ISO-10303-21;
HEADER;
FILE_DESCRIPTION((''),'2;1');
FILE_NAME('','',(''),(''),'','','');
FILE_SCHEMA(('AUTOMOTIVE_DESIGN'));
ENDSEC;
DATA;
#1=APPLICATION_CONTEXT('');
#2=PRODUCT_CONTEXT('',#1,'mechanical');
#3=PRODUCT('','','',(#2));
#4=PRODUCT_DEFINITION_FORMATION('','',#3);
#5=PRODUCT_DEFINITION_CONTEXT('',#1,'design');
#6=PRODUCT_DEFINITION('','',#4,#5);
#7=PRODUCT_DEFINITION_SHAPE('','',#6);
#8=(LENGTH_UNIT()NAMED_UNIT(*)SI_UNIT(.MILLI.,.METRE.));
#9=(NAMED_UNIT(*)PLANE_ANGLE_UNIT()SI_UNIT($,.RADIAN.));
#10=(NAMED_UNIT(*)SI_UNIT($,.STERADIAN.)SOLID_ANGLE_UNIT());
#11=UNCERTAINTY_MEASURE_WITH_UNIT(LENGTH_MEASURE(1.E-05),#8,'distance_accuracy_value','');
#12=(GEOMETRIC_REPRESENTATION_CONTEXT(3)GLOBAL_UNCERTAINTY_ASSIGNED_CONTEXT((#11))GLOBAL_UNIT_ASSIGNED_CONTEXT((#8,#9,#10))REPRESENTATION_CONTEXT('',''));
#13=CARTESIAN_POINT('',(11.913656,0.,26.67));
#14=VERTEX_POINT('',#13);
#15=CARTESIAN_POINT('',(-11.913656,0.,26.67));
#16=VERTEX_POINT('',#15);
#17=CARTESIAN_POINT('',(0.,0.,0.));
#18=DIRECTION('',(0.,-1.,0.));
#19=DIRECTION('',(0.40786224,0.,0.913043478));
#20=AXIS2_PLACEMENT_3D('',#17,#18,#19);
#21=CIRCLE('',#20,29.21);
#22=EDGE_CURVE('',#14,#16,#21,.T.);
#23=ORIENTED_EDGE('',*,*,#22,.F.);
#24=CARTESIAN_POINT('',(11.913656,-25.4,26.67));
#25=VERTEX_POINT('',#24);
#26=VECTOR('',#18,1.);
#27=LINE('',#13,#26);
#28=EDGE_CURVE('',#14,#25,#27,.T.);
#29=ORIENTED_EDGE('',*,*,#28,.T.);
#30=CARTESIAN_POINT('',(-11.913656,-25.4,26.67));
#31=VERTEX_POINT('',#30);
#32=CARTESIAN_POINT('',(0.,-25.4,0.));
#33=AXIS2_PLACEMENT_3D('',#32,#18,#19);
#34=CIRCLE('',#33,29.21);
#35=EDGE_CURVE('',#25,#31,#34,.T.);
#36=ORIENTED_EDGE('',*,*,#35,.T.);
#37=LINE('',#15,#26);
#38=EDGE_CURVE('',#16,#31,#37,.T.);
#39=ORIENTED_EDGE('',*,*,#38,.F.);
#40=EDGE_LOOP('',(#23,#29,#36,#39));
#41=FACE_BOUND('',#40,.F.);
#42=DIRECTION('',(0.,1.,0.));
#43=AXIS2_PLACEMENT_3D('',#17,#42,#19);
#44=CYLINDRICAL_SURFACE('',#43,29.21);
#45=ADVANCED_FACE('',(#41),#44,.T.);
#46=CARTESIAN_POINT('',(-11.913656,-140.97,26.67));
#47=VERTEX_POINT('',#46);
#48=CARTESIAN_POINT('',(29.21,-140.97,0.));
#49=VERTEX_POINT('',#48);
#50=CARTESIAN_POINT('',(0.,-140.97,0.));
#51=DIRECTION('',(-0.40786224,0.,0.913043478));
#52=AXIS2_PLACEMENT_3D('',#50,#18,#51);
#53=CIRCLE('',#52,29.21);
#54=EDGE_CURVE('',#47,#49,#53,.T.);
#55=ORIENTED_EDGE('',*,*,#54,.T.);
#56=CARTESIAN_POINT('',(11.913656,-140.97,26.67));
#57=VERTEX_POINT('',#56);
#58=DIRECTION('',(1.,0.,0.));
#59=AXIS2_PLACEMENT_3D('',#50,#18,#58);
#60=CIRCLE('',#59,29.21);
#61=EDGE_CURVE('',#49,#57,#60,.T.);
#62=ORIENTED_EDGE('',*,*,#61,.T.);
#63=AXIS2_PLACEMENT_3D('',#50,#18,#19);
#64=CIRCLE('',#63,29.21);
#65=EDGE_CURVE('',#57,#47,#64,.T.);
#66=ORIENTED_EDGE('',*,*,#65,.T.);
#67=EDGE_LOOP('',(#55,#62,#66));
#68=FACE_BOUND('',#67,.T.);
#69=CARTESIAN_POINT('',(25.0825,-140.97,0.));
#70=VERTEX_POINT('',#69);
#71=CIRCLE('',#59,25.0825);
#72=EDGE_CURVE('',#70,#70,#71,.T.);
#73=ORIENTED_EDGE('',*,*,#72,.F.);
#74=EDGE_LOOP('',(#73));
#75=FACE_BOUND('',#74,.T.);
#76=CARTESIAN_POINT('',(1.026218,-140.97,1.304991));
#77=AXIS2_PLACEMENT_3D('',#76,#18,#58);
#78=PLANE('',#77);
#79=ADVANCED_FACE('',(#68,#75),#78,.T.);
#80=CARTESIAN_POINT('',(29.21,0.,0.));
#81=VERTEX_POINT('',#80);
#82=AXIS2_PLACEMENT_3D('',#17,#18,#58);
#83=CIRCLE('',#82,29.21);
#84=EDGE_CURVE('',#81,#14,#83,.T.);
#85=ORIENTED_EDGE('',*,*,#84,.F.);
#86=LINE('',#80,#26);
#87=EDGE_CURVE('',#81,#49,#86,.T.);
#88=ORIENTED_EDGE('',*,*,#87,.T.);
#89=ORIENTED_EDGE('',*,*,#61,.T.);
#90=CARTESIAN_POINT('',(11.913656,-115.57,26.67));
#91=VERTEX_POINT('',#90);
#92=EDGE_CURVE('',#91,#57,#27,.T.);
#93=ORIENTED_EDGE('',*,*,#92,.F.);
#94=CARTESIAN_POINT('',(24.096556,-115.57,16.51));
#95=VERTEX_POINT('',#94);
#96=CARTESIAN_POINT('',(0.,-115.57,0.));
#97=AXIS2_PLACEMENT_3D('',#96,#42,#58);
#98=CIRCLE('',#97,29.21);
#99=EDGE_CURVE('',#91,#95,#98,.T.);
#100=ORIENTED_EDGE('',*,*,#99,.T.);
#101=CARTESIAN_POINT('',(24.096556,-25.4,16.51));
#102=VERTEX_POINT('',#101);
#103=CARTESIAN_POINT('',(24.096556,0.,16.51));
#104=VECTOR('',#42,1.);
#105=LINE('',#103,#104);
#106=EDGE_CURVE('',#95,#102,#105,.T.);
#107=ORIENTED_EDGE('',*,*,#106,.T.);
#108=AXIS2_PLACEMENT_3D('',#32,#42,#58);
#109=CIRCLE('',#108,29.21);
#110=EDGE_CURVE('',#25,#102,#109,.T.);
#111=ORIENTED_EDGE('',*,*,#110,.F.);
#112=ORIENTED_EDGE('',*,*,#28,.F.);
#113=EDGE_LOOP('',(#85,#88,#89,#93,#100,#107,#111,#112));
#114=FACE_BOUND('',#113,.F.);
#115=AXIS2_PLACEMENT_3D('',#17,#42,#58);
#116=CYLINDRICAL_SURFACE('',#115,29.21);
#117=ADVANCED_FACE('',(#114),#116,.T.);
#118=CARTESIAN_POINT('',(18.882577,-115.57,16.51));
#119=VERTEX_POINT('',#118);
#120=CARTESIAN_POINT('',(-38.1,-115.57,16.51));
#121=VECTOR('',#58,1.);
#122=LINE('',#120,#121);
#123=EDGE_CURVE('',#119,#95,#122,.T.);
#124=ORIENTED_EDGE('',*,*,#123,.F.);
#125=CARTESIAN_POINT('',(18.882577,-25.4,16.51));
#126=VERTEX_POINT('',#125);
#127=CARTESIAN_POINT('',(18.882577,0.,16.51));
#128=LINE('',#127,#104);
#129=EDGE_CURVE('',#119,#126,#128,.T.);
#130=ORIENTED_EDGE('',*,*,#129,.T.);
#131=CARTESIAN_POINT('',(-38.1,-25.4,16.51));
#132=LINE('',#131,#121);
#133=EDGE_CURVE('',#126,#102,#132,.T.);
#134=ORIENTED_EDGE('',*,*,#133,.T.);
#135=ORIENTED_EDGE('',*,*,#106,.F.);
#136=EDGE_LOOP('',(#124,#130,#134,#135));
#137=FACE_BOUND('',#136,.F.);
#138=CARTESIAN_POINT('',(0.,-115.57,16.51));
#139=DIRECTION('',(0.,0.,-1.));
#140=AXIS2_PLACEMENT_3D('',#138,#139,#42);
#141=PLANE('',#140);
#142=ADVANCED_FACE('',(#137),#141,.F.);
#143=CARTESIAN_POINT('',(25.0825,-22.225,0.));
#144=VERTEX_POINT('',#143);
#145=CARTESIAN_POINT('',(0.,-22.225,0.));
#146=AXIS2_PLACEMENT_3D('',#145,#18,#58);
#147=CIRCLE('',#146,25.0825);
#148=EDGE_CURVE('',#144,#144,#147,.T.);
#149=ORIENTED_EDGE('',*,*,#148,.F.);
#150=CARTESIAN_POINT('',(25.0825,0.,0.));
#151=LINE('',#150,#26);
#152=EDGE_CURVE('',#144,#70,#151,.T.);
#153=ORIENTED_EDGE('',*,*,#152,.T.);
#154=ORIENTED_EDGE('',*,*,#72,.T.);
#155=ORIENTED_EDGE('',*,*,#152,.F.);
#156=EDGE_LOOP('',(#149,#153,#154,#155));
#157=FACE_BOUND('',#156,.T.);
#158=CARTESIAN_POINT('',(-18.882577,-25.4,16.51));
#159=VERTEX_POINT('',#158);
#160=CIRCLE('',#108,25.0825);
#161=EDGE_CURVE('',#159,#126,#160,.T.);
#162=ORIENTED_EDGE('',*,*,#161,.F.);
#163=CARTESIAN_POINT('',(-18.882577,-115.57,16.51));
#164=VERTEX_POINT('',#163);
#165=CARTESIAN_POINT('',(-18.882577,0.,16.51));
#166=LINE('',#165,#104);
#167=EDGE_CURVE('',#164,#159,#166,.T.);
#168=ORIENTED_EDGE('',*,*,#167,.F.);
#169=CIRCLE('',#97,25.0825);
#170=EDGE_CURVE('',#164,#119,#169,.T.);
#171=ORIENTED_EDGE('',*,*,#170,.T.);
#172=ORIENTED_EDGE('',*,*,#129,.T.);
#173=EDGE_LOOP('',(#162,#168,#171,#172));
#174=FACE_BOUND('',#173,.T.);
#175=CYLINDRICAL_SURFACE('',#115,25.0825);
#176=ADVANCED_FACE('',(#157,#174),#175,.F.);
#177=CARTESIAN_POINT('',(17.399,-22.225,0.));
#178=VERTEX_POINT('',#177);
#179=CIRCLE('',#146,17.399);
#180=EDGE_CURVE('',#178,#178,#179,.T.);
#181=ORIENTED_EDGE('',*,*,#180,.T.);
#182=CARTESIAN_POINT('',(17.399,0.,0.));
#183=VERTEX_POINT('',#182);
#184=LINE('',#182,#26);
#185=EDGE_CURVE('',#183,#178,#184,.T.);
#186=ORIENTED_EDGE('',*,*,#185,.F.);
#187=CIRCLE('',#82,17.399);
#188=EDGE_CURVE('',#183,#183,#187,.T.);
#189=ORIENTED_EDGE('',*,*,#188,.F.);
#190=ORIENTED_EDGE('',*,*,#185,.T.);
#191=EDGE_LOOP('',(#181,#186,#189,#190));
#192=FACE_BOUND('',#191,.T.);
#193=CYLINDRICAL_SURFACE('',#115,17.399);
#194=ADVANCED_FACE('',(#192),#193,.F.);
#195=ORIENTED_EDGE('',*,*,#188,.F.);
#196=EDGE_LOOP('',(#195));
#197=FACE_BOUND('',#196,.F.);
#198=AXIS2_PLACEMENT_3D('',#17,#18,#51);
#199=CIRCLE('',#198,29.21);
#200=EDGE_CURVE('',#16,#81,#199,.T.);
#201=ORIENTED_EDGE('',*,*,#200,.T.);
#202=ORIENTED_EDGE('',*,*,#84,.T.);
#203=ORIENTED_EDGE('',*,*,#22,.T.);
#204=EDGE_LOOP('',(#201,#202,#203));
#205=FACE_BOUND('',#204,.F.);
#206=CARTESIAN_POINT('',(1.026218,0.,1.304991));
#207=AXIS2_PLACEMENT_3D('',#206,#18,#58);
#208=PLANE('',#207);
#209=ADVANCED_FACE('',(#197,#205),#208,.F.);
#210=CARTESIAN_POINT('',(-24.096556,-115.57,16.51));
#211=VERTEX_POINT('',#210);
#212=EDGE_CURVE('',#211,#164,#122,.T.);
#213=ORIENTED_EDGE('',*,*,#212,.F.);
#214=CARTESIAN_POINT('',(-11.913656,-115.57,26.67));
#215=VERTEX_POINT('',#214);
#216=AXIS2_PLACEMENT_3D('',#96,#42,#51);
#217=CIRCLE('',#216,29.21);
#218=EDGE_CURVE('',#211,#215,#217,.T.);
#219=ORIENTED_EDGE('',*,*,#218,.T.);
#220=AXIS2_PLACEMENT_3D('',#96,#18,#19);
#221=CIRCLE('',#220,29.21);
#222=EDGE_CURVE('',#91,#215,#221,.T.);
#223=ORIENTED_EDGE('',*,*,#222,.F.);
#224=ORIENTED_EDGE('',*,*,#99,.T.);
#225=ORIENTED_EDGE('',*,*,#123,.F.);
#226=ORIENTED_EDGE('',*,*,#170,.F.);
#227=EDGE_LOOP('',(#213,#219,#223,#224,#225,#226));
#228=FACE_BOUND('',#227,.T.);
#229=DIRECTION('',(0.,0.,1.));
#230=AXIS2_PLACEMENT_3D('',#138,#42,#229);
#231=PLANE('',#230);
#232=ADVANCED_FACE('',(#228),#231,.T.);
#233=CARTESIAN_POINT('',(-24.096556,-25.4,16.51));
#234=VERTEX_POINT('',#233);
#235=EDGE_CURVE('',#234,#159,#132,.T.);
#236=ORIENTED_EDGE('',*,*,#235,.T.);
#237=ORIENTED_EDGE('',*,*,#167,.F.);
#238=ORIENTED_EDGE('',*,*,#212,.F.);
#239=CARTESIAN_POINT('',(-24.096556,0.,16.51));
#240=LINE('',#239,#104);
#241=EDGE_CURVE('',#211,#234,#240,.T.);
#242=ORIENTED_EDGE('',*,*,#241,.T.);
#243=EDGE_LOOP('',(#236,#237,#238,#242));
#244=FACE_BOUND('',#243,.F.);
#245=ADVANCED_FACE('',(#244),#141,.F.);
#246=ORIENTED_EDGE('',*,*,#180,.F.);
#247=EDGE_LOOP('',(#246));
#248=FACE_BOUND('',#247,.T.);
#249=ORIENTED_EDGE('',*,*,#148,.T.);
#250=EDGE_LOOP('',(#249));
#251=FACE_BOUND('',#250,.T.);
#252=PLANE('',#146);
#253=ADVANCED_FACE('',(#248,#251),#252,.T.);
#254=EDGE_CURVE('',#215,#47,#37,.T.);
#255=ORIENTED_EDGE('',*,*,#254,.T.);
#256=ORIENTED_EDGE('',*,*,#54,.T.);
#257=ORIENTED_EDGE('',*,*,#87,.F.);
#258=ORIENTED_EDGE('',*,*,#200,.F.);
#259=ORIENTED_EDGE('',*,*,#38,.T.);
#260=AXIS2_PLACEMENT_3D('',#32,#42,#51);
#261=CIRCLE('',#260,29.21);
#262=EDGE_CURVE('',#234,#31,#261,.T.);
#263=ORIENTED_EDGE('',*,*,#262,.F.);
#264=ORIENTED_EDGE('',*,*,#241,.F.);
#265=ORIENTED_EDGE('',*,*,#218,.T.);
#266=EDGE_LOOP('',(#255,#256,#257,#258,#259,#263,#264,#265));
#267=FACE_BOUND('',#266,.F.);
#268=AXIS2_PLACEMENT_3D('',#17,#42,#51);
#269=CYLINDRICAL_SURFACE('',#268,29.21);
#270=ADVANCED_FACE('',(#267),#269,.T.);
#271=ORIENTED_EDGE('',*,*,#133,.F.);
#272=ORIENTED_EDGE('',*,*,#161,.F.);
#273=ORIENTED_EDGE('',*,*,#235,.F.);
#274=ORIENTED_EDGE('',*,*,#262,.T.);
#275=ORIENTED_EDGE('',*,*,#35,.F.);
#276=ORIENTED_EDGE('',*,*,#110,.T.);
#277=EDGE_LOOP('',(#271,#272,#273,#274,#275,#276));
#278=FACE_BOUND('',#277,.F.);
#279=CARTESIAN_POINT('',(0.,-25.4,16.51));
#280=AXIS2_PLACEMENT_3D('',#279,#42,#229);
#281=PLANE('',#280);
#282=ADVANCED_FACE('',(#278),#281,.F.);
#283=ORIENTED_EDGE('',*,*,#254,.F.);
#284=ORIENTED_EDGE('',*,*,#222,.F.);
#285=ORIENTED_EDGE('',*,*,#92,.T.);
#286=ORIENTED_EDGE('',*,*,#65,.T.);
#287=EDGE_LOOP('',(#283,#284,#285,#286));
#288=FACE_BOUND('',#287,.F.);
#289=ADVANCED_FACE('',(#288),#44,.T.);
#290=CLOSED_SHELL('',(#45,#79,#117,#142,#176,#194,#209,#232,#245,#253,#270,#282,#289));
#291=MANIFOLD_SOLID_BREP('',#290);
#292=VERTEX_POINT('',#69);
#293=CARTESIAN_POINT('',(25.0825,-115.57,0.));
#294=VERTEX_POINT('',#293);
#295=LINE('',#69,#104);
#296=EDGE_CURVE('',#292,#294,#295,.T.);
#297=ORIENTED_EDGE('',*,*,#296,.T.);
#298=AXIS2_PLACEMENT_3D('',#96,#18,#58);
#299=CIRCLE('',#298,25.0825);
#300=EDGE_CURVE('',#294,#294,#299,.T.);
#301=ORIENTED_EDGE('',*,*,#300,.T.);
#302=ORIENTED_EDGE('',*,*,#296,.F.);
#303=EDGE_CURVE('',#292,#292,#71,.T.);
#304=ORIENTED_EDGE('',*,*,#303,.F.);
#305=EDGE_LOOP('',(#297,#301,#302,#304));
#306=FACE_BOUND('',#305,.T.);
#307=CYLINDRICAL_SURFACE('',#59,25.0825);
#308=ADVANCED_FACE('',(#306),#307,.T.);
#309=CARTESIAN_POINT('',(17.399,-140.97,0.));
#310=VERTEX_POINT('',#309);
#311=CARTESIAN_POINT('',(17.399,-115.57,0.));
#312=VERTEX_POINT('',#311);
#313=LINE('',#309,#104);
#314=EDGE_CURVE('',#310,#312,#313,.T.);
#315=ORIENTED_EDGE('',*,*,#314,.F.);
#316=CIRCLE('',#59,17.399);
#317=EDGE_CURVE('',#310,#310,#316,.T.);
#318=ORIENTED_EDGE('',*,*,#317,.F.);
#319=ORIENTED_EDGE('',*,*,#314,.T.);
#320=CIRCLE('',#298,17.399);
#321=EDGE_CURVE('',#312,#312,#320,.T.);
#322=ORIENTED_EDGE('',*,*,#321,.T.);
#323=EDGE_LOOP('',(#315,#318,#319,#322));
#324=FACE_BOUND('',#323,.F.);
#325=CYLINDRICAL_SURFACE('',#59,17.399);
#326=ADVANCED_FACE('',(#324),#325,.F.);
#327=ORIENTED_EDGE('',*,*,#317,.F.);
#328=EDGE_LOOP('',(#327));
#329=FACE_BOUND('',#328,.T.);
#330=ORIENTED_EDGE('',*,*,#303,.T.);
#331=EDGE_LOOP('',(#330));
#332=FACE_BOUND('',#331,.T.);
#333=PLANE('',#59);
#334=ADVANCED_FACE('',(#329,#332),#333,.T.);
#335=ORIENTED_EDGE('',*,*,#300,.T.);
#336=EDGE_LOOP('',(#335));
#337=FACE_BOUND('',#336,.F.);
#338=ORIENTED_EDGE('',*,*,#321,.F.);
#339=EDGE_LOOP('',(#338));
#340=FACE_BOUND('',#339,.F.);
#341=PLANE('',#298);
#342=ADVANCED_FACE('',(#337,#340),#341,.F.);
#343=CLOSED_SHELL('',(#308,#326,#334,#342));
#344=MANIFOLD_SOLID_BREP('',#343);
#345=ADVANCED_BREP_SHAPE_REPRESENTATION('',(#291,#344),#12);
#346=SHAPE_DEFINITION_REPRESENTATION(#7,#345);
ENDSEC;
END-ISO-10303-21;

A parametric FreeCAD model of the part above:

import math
import FreeCAD as App
import Part
import Sketcher
from FreeCAD import Vector
Q = App.Units.Quantity


def add_polygon(sketch, points):
    """Adds a closed chain of lines whose ends are joined by coincident constraints."""
    first, n = sketch.GeometryCount, len(points)
    for a, b in zip(points, points[1:] + points[:1]):
        sketch.addGeometry(Part.LineSegment(App.Vector(*a, 0), App.Vector(*b, 0)), False)
    for i in range(n):
        sketch.addConstraint(Sketcher.Constraint("Coincident", first + i, 2, first + (i + 1) % n, 1))

doc = App.newDocument("Part")
body = doc.addObject("PartDesign::Body", "Body")

# Sketch on XZ plane
sketch1 = doc.addObject("Sketcher::SketchObject", "Sketch")
body.addObject(sketch1)
sketch1.AttachmentSupport = (doc.XZ_Plane, [""])
sketch1.MapMode = "FlatFace"
sketch1.addGeometry([
    Part.Circle(Vector(0, 0, 0), Vector(0, 0, 1), 25.0825),
    Part.Circle(Vector(0, 0, 0), Vector(0, 0, 1), 17.399),
], False)
sketch1.addConstraint([
    Sketcher.Constraint("Coincident", 0, 3, -1, 1),
    Sketcher.Constraint("Coincident", 1, 3, -1, 1),
    Sketcher.Constraint("Diameter", 1, Q("1.37 in")),
    Sketcher.Constraint("Diameter", 0, Q("1.975 in")),
])
pad1 = doc.addObject("PartDesign::Pad", "Pad")
body.addObject(pad1)
pad1.Profile = sketch1
pad1.Length = Q("0.875 in")

# Sketch on XZ plane
sketch2 = doc.addObject("Sketcher::SketchObject", "Sketch001")
body.addObject(sketch2)
sketch2.AttachmentSupport = (doc.XZ_Plane, [""])
sketch2.MapMode = "FlatFace"
sketch2.addGeometry([
    Part.ArcOfCircle(Part.Circle(Vector(0, 0, 0), Vector(0, 0, 1), 29.21), math.radians(114.070615), math.radians(360)),
    Part.ArcOfCircle(Part.Circle(Vector(0, 0, 0), Vector(0, 0, 1), 29.21), math.radians(0), math.radians(65.929385)),
    Part.ArcOfCircle(Part.Circle(Vector(0, 0, 0), Vector(0, 0, 1), 29.21), math.radians(65.929385), math.radians(114.070615)),
    Part.Circle(Vector(0, 0, 0), Vector(0, 0, 1), 25.0825),
], False)
sketch2.addConstraint([
    Sketcher.Constraint("Tangent", 0, 2, 1, 1),
    Sketcher.Constraint("Tangent", 1, 2, 2, 1),
    Sketcher.Constraint("Tangent", 2, 2, 0, 1),
    Sketcher.Constraint("Coincident", 0, 3, -1, 1),
    Sketcher.Constraint("Coincident", 3, 3, -1, 1),
    Sketcher.Constraint("PointOnObject", 0, 2, -1),
    Sketcher.Constraint("Horizontal", 1, 2, 2, 2),
    Sketcher.Constraint("Radius", 0, Q("1.15 in")),
    Sketcher.Constraint("Diameter", 3, Q("1.975 in")),
    Sketcher.Constraint("DistanceY", -1, 1, 1, 2, Q("1.05 in")),
])
pad2 = doc.addObject("PartDesign::Pad", "Pad001")
body.addObject(pad2)
pad2.Profile = sketch2
pad2.Length = Q("5.55 in")

# Sketch on YZ plane
sketch3 = doc.addObject("Sketcher::SketchObject", "Sketch002")
body.addObject(sketch3)
sketch3.AttachmentSupport = (doc.YZ_Plane, [""])
sketch3.MapMode = "FlatFace"
add_polygon(sketch3, [(-115.57, 29.21), (-115.57, 16.51), (-25.4, 16.51), (-25.4, 29.21)])  # lines 0-3
sketch3.addConstraint([
    Sketcher.Constraint("Vertical", 0),
    Sketcher.Constraint("Horizontal", 1),
    Sketcher.Constraint("Vertical", 2),
    Sketcher.Constraint("Horizontal", 3),
    Sketcher.Constraint("DistanceY", 0, 2, 0, 1, Q("0.5 in")),
    Sketcher.Constraint("DistanceX", 1, 2, -1, 1, Q("1 in")),
    Sketcher.Constraint("DistanceX", 1, 1, 1, 2, Q("3.55 in")),
    Sketcher.Constraint("DistanceY", -1, 1, 0, 2, Q("0.65 in")),
])
pocket1 = doc.addObject("PartDesign::Pocket", "Pocket")
body.addObject(pocket1)
pocket1.Profile = sketch3
pocket1.Length = Q("3 in")
pocket1.Midplane = True
body2 = doc.addObject("PartDesign::Body", "Body001")

# Sketch on XZ plane
sketch4 = doc.addObject("Sketcher::SketchObject", "Sketch003")
body2.addObject(sketch4)
sketch4.AttachmentSupport = (doc.getObject("XZ_Plane001"), [""])
sketch4.MapMode = "FlatFace"
sketch4.AttachmentOffset = App.Placement(Vector(0, 0, 5.55 * 25.4), App.Rotation())
sketch4.addGeometry([
    Part.Circle(Vector(0, 0, 0), Vector(0, 0, 1), 25.0825),
    Part.Circle(Vector(0, 0, 0), Vector(0, 0, 1), 17.399),
], False)
sketch4.addConstraint([
    Sketcher.Constraint("Coincident", 0, 3, -1, 1),
    Sketcher.Constraint("Coincident", 1, 3, -1, 1),
    Sketcher.Constraint("Diameter", 1, Q("1.37 in")),
    Sketcher.Constraint("Diameter", 0, Q("1.975 in")),
])
pad3 = doc.addObject("PartDesign::Pad", "Pad002")
body2.addObject(pad3)
pad3.Profile = sketch4
pad3.Length = Q("1 in")
pad3.Reversed = True

doc.recompute()
